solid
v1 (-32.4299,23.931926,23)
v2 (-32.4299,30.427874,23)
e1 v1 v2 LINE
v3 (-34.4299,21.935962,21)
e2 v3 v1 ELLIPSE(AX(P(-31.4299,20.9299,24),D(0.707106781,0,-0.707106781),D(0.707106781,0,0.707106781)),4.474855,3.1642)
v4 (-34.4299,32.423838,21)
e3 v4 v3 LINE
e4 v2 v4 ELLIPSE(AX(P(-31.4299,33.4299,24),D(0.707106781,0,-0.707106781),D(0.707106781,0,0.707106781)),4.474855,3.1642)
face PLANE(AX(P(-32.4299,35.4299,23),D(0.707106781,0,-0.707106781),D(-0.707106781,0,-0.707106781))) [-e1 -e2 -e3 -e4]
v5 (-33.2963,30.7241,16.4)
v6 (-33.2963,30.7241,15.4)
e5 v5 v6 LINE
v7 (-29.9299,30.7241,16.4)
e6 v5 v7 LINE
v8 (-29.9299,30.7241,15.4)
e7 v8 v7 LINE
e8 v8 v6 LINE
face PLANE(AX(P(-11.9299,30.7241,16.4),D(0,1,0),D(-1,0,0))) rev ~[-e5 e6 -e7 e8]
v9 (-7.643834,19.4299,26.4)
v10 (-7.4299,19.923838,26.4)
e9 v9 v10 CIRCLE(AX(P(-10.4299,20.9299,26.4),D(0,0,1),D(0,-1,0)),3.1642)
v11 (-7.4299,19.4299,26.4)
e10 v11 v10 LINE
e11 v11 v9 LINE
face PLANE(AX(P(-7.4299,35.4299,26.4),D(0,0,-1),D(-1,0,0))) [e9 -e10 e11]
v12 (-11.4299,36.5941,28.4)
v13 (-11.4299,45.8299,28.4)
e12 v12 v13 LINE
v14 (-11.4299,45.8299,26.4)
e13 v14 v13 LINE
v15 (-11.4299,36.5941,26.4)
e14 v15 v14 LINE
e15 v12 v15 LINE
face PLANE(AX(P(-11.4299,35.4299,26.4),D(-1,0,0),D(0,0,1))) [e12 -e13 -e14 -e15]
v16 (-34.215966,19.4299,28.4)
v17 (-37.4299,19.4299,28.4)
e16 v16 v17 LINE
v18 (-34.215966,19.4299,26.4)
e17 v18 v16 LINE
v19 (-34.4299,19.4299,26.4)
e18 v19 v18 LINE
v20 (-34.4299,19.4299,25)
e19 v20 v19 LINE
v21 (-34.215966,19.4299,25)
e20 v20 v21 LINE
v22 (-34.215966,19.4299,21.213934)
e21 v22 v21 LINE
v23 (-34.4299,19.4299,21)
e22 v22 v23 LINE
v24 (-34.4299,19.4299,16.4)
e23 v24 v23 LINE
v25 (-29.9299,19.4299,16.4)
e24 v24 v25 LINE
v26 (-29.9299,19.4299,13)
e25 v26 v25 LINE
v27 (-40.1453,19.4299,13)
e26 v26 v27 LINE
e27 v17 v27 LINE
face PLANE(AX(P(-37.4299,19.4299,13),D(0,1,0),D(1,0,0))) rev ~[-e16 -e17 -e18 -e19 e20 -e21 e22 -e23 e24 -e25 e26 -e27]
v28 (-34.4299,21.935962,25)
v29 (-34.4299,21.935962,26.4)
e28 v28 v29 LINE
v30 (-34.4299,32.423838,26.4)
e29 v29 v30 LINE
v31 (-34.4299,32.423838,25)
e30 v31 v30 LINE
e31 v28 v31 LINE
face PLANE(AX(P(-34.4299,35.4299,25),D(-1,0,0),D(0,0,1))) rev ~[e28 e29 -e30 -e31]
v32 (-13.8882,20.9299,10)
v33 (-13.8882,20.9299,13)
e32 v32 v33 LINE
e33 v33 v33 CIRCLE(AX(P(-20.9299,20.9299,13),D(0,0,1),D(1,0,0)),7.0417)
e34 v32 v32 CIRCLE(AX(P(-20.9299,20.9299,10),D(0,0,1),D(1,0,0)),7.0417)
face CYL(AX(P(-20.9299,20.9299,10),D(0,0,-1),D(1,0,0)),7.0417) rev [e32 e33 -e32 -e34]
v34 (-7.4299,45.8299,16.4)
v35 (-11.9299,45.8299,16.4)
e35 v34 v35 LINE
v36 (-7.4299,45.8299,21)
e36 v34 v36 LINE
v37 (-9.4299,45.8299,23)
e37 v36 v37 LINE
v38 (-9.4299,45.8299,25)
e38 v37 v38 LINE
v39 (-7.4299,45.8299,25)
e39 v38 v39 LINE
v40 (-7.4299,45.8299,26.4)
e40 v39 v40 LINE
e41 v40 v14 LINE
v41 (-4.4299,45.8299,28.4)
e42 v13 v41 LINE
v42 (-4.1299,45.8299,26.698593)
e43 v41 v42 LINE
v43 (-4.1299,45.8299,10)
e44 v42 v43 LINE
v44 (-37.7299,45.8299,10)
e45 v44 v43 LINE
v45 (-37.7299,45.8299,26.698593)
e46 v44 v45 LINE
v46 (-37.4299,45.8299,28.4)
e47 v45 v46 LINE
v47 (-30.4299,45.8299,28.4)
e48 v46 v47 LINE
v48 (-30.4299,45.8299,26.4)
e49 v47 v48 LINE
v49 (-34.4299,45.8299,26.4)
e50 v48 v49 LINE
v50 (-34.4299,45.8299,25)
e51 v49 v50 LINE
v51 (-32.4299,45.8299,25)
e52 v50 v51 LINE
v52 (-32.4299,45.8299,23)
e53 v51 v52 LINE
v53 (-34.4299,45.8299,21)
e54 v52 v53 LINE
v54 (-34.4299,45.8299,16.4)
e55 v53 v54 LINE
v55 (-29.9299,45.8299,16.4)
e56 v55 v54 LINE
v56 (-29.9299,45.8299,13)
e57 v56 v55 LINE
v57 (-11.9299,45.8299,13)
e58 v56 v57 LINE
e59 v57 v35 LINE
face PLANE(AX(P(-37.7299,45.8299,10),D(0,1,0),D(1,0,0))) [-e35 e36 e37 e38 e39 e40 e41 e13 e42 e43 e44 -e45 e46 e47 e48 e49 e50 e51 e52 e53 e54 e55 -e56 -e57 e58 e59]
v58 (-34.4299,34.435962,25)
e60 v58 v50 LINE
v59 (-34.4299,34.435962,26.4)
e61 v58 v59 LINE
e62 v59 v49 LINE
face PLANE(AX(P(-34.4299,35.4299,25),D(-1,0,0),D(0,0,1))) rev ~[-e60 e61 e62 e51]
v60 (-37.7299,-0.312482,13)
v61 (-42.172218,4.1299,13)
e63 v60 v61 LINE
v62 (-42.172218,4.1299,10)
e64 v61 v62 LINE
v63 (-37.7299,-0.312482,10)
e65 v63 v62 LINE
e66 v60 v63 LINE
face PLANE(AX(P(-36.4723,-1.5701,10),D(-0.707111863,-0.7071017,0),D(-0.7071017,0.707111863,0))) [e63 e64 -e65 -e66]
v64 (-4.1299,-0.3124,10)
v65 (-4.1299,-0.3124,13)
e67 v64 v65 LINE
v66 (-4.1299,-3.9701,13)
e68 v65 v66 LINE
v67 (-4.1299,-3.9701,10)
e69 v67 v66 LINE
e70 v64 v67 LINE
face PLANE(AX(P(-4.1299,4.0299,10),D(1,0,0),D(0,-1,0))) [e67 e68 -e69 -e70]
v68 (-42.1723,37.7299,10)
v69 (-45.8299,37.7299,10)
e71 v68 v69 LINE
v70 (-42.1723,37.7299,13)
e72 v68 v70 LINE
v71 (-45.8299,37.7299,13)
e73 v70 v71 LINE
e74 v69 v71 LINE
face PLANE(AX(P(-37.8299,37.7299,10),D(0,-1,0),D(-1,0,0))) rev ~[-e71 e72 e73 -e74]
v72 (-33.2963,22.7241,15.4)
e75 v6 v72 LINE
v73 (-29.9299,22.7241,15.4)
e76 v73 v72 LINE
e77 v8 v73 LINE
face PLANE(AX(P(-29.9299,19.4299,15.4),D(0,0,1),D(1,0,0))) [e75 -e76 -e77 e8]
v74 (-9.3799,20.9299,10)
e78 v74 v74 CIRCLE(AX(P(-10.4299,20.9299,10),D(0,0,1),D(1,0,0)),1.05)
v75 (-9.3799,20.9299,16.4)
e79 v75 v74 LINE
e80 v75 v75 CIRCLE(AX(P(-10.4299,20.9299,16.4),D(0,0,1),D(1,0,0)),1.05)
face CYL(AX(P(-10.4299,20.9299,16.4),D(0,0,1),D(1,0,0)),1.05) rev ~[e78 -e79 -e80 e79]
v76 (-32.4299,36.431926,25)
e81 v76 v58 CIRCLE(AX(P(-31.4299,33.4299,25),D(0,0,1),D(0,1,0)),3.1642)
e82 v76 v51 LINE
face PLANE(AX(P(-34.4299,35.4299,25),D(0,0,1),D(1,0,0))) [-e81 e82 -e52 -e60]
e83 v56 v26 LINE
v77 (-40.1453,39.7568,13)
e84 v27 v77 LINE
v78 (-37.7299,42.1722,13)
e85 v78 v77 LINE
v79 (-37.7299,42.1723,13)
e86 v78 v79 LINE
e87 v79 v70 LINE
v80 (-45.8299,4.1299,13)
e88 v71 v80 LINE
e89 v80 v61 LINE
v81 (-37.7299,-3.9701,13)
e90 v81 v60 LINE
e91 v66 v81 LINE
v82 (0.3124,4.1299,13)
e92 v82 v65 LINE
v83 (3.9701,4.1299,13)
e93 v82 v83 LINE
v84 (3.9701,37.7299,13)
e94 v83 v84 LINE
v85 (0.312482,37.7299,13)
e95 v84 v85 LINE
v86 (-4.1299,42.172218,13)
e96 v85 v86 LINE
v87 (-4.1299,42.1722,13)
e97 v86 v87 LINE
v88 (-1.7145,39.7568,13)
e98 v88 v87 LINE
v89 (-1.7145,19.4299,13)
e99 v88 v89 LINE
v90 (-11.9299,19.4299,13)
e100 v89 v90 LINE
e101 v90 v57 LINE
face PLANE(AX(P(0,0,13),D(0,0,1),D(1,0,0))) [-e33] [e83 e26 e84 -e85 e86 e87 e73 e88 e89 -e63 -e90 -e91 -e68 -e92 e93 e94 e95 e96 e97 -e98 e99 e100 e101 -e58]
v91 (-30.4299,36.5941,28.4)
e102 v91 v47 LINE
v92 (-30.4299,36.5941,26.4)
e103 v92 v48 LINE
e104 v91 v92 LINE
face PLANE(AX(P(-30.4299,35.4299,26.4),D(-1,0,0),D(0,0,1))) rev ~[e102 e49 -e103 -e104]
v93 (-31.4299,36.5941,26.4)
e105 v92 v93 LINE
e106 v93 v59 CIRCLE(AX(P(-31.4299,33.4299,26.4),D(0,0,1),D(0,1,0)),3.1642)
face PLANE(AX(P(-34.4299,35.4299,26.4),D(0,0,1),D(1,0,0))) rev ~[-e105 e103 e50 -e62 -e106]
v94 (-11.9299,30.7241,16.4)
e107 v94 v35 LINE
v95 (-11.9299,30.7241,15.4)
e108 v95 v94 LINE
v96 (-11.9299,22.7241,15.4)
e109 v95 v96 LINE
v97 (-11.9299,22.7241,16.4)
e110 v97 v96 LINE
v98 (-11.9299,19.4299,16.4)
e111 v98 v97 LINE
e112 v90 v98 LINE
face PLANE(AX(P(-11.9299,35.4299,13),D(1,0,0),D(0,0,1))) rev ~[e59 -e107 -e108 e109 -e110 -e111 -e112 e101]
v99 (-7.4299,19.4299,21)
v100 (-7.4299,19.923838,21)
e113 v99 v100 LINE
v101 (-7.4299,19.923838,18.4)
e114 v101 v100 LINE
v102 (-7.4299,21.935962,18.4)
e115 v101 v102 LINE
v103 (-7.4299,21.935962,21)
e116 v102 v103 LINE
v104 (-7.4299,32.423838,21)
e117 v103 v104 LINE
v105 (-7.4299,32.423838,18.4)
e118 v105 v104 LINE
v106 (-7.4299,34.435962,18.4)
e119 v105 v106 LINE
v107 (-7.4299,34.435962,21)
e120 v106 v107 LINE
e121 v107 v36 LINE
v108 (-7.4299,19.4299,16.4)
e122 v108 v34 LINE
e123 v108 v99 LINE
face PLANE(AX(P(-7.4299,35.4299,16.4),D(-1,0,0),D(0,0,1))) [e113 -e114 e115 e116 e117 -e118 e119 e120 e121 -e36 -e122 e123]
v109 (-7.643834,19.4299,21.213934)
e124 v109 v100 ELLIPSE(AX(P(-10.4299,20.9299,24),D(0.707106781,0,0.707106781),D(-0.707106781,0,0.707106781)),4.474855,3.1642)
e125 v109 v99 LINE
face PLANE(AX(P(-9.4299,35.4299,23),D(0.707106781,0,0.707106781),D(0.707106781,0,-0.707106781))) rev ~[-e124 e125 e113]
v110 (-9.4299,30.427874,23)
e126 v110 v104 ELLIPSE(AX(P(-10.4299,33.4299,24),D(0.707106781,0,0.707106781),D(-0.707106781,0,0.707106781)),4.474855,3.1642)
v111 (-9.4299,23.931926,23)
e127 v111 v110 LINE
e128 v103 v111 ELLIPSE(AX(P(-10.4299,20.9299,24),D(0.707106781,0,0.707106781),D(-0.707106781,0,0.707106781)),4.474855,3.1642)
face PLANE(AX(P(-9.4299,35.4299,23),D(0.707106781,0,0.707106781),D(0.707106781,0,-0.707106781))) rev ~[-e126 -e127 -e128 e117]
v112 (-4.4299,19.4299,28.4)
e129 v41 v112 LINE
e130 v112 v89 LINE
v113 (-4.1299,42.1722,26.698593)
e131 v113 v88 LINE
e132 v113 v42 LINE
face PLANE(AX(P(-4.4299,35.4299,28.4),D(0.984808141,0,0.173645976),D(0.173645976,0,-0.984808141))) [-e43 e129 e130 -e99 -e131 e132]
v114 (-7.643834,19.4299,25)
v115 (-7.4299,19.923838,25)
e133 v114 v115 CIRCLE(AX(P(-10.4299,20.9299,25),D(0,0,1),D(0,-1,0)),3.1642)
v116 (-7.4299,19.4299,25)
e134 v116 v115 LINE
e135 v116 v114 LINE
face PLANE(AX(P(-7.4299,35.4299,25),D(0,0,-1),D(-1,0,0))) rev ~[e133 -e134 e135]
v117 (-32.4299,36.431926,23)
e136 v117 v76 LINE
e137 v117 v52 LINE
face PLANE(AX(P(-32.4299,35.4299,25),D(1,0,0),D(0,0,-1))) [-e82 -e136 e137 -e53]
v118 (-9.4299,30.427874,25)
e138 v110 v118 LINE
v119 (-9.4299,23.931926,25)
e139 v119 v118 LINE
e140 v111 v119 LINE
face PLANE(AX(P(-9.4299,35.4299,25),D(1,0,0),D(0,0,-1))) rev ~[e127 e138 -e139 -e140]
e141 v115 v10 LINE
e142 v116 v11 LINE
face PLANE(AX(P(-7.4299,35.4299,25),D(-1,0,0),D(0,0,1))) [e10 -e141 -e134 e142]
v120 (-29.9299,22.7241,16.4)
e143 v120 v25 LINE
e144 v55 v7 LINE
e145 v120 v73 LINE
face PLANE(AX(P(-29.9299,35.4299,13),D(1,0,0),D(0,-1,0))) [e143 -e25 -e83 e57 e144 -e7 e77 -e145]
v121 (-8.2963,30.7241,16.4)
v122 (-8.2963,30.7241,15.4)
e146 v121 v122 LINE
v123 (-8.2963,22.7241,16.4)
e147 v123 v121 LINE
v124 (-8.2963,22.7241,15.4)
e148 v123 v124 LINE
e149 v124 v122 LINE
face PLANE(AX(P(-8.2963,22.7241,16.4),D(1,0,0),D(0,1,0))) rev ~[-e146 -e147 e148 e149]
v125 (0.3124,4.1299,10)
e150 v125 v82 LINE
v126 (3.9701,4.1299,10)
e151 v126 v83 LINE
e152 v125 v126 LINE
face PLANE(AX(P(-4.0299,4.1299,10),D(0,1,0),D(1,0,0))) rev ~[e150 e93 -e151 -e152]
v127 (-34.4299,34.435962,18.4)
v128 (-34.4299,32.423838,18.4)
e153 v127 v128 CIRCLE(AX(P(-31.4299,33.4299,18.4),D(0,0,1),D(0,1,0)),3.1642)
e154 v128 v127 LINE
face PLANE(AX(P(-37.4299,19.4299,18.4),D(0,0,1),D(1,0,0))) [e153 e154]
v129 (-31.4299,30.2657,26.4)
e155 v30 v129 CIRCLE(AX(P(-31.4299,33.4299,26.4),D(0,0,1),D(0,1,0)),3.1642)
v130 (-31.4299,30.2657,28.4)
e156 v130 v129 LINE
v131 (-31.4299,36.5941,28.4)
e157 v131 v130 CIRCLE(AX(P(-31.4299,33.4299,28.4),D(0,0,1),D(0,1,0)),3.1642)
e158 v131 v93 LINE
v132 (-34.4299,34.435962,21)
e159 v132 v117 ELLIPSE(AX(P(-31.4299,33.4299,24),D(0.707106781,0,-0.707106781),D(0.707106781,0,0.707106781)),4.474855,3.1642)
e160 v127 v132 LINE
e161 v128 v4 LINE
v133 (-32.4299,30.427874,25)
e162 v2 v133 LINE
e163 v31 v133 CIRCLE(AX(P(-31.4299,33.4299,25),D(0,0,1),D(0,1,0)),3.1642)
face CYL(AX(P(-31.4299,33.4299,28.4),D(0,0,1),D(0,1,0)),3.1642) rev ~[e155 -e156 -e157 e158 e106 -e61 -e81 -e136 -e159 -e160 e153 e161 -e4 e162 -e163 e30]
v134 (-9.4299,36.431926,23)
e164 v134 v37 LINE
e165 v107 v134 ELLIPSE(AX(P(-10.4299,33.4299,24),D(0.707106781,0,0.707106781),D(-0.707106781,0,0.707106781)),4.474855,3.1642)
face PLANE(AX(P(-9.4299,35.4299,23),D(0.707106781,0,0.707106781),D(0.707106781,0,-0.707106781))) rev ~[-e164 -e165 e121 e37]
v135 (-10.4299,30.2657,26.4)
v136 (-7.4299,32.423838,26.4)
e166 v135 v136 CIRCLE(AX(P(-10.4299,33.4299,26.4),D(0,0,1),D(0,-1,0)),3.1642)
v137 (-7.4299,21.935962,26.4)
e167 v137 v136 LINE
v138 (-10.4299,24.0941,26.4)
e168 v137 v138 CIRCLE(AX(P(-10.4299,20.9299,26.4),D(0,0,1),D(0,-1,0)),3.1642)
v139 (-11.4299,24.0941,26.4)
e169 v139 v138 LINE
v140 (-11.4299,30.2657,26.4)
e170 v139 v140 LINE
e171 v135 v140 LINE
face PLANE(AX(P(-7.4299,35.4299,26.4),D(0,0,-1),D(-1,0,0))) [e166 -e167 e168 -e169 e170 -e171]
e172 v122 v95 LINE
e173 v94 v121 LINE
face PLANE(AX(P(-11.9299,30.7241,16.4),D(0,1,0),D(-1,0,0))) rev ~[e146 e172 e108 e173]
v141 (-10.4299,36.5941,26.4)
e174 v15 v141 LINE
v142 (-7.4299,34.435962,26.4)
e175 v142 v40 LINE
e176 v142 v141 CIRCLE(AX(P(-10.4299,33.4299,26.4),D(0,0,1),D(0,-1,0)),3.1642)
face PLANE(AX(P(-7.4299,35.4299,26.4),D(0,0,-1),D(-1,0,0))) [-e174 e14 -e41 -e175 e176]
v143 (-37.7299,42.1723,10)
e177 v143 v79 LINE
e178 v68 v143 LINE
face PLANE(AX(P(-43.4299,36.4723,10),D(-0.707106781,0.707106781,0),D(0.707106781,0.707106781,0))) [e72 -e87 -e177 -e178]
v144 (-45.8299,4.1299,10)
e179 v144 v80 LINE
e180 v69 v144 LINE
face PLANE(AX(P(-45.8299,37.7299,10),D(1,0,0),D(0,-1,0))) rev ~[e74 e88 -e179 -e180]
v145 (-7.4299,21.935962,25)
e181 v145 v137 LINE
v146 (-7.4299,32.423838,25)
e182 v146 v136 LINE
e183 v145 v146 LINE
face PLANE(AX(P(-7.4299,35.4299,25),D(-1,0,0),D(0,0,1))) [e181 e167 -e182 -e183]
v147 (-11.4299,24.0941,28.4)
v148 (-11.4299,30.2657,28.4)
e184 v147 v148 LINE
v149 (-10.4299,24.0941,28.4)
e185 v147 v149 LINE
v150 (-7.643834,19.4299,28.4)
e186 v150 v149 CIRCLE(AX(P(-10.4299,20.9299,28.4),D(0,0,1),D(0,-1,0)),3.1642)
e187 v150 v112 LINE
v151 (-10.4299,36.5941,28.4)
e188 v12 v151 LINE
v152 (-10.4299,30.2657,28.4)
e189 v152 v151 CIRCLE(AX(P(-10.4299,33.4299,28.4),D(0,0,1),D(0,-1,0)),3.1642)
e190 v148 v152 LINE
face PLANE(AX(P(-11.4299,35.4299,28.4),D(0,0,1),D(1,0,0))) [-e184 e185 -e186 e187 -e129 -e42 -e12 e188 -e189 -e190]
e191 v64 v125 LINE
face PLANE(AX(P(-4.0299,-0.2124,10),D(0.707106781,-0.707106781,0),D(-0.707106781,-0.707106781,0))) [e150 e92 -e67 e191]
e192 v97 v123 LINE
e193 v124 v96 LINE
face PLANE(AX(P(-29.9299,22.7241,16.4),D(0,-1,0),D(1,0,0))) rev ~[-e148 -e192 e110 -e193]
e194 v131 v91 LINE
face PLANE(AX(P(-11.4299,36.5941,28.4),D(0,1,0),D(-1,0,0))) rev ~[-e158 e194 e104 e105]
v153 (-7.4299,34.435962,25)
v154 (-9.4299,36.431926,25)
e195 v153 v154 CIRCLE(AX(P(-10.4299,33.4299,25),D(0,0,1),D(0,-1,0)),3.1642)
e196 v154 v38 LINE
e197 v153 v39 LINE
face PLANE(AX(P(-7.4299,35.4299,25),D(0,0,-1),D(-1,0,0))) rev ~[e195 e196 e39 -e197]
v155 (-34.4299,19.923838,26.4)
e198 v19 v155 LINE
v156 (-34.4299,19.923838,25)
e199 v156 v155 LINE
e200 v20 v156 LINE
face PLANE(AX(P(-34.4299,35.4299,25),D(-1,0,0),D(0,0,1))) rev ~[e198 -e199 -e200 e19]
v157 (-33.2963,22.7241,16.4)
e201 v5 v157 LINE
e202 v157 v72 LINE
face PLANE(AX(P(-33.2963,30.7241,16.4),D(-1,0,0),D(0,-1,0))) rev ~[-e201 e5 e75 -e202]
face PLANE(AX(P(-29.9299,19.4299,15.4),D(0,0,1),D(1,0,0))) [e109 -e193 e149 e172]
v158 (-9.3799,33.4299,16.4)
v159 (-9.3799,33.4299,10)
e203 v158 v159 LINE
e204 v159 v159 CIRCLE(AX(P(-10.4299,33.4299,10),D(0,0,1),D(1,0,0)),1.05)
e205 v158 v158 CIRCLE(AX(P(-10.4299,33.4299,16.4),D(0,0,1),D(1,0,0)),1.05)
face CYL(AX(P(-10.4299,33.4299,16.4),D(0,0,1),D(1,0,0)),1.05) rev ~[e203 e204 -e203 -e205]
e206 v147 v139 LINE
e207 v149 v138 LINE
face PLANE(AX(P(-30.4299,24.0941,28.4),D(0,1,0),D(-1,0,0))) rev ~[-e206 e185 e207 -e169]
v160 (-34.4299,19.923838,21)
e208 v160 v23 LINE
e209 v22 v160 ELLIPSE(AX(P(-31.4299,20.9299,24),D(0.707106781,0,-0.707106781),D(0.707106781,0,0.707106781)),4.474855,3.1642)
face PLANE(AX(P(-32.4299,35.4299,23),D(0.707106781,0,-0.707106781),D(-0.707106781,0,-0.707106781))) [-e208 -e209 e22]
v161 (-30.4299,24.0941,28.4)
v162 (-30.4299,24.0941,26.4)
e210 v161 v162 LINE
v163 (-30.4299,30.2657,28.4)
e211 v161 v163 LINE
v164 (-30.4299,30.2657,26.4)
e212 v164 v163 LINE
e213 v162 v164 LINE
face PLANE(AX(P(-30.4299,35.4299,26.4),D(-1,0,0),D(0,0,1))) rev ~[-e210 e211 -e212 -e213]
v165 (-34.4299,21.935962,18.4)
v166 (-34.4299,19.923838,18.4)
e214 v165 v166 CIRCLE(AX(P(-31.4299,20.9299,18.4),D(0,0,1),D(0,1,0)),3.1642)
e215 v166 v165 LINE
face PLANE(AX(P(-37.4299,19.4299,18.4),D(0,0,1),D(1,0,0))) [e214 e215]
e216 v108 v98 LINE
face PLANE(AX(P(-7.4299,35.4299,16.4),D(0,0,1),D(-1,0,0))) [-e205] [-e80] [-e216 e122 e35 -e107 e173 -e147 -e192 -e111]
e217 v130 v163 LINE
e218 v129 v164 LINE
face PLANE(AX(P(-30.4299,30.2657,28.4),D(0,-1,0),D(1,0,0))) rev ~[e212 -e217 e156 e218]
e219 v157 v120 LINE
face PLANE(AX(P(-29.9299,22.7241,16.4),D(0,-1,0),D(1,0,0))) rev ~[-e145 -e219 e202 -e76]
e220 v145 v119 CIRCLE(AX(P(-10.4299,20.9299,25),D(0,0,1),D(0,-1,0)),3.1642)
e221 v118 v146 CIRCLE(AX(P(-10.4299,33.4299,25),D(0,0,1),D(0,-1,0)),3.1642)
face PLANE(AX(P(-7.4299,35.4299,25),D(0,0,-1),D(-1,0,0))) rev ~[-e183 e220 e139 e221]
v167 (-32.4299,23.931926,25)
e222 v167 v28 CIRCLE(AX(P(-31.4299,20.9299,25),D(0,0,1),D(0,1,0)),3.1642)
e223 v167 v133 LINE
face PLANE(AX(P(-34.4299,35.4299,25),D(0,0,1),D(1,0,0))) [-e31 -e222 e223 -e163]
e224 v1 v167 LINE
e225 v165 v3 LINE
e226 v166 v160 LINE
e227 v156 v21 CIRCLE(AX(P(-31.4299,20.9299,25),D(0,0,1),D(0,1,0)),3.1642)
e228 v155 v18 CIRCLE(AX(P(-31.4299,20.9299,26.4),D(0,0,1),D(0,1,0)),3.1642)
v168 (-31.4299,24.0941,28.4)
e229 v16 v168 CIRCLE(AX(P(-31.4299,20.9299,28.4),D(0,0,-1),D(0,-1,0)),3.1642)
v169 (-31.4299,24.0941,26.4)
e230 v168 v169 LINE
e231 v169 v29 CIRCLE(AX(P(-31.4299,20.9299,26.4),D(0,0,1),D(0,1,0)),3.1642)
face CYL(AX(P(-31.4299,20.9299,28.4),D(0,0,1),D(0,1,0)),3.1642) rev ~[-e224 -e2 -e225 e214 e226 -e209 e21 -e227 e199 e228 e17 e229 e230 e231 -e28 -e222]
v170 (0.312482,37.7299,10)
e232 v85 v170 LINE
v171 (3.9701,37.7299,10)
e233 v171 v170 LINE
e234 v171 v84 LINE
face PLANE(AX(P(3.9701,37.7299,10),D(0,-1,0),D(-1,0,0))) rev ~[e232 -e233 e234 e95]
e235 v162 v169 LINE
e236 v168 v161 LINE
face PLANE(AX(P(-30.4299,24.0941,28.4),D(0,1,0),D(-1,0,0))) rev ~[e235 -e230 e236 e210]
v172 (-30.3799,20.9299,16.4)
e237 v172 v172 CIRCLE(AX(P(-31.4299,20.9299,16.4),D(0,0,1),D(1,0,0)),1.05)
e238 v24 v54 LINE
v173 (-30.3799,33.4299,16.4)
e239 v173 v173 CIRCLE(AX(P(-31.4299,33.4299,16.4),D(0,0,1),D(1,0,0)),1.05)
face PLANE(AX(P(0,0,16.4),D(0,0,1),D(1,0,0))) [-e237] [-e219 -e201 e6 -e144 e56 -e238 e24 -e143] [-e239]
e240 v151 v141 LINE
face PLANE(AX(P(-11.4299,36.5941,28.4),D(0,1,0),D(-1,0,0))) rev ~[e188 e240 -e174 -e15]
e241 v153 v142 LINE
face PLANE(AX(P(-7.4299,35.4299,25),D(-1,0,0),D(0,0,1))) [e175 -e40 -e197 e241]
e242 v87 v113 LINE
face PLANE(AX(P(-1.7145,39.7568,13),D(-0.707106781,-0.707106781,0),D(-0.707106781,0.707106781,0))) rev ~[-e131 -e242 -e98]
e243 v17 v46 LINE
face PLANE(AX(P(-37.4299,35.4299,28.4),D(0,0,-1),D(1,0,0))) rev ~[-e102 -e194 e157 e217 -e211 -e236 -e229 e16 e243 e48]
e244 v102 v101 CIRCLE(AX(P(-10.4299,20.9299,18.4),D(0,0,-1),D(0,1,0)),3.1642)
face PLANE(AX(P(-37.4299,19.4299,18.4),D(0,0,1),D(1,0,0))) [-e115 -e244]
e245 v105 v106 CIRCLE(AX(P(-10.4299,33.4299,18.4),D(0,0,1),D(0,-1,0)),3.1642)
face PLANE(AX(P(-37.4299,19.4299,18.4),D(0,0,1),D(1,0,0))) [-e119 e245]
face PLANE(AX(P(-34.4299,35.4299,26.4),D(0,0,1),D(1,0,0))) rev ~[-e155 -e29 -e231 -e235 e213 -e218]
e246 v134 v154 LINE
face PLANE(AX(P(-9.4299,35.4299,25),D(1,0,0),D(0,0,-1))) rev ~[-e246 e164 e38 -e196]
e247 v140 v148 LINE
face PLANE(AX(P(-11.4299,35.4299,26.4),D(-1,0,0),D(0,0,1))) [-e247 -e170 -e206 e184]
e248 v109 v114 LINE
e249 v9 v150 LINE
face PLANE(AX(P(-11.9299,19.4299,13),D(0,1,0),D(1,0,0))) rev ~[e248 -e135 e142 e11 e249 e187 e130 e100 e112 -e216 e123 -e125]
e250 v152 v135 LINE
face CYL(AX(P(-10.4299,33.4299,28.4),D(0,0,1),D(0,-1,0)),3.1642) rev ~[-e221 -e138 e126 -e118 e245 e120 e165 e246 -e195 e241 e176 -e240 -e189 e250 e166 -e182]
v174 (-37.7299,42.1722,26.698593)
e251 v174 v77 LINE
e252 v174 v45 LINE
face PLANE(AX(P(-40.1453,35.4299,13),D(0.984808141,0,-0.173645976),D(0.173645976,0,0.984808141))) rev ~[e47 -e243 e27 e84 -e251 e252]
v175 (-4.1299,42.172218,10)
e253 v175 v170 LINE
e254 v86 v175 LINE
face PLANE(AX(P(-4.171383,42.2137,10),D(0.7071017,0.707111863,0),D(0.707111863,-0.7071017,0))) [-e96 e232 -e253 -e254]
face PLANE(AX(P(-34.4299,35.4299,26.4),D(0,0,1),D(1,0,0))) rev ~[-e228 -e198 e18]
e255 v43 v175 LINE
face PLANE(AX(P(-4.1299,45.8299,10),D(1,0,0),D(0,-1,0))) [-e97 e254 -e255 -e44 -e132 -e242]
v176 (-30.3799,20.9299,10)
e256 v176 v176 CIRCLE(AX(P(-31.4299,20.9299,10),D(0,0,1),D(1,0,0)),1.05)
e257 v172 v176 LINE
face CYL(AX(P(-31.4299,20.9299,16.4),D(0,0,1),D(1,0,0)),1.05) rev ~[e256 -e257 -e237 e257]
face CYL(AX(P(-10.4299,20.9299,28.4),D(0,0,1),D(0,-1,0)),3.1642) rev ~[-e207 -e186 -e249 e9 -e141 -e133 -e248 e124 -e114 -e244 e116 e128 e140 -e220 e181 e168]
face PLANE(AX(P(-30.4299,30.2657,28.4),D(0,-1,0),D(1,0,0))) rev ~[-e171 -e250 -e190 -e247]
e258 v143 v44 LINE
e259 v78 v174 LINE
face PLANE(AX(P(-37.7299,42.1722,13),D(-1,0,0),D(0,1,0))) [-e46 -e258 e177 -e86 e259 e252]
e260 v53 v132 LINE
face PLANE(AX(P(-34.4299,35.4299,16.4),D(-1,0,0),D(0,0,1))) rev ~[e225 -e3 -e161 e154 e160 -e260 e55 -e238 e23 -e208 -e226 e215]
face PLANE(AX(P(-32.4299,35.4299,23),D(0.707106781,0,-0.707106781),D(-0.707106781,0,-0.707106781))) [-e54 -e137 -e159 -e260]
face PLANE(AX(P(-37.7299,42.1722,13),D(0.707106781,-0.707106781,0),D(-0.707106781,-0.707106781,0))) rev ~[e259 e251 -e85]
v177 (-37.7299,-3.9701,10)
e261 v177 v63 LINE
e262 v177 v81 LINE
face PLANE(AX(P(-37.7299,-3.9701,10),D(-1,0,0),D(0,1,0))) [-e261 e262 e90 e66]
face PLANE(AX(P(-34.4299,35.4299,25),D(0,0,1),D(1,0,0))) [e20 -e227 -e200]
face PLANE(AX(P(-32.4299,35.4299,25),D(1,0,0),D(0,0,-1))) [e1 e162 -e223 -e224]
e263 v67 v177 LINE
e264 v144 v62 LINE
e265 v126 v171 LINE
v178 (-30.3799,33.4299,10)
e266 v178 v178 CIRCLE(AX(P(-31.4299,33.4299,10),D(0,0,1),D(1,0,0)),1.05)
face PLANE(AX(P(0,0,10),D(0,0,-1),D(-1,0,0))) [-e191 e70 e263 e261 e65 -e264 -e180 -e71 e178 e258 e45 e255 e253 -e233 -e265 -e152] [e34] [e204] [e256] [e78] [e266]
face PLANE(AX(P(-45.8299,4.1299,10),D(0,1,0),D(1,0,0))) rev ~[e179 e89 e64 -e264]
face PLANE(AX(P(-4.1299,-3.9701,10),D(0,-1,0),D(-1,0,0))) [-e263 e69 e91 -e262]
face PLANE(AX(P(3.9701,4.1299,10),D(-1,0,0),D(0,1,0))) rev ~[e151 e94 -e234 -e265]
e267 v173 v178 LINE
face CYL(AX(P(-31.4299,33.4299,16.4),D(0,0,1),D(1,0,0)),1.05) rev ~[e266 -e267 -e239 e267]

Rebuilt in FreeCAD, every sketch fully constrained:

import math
import FreeCAD as App
import Part
import Sketcher

V = App.Vector
Q = App.Units.Quantity

doc = App.newDocument("Part")
body = doc.addObject("PartDesign::Body", "Body")

# Sketch on XY plane
sketch1 = body.newObject("Sketcher::SketchObject", "Sketch")
sketch1.AttachmentSupport = (doc.getObject("XY_Plane"), [""])
sketch1.MapMode = "FlatFace"
sketch1.AttachmentOffset = App.Placement(V(0, 0, 10), App.Rotation())
sketch1.addGeometry([
    Part.LineSegment(V(-5, -2, 0), V(2, 5, 0)),  # 0
    Part.LineSegment(V(2, 5, 0), V(2, 36, 0)),  # 1
    Part.LineSegment(V(2, 36, 0), V(-5, 43, 0)),  # 2
    Part.LineSegment(V(-5, 43, 0), V(-36, 43, 0)),  # 3
    Part.LineSegment(V(-36, 43, 0), V(-43, 36, 0)),  # 4
    Part.LineSegment(V(-43, 36, 0), V(-43, 5, 0)),  # 5
    Part.LineSegment(V(-43, 5, 0), V(-36, -2, 0)),  # 6
    Part.LineSegment(V(-36, -2, 0), V(-5, -2, 0)),  # 7
    Part.Circle(V(-21, 21, 0), V(0, 0, 1), 7),  # 8
], False)
sketch1.addConstraint([
    Sketcher.Constraint("Coincident", 0, 2, 1, 1),
    Sketcher.Constraint("Coincident", 1, 2, 2, 1),
    Sketcher.Constraint("Coincident", 2, 2, 3, 1),
    Sketcher.Constraint("Coincident", 3, 2, 4, 1),
    Sketcher.Constraint("Coincident", 4, 2, 5, 1),
    Sketcher.Constraint("Coincident", 5, 2, 6, 1),
    Sketcher.Constraint("Coincident", 6, 2, 7, 1),
    Sketcher.Constraint("Coincident", 7, 2, 0, 1),
    Sketcher.Constraint("Vertical", 1),
    Sketcher.Constraint("Horizontal", 3),
    Sketcher.Constraint("Vertical", 5),
    Sketcher.Constraint("Horizontal", 7),
    Sketcher.Constraint("Perpendicular", 0, 2),
    Sketcher.Constraint("Perpendicular", 2, 4),
    Sketcher.Constraint("Perpendicular", 4, 6),
    Sketcher.Constraint("Horizontal", 1, 2, 4, 2),
    Sketcher.Constraint("Horizontal", 0, 2, 5, 2),
    Sketcher.Constraint("Vertical", 3, 2, 6, 2),
    Sketcher.Constraint("Vertical", 2, 2, 7, 2),
    Sketcher.Constraint("Equal", 7, 1),
    Sketcher.Constraint("DistanceX", 4, 2, 1, 2, 45.0),
    Sketcher.Constraint("Diameter", 8, 14.0834),
    Sketcher.Constraint("DistanceX", 8, 3, 0, 2, 22.5),
    Sketcher.Constraint("DistanceY", 8, 3, 2, 2, 22.5),
    Sketcher.Constraint("DistanceX", 8, 3, -1, 1, 20.93),
    Sketcher.Constraint("DistanceY", -1, 1, 8, 3, 20.93),
    Sketcher.Constraint("DistanceX", 3, 2, 3, 1, 31.0847),
])
pad1 = body.newObject("PartDesign::Pad", "Pad")
pad1.Profile = sketch1
pad1.Length = 3

# Sketch on XY plane
sketch2 = body.newObject("Sketcher::SketchObject", "Sketch001")
sketch2.AttachmentSupport = (doc.getObject("XY_Plane"), [""])
sketch2.MapMode = "FlatFace"
sketch2.AttachmentOffset = App.Placement(V(0, 0, 10), App.Rotation())
sketch2.addGeometry([
    Part.LineSegment(V(-46, 38, 0), V(-38, 38, 0)),  # 0
    Part.LineSegment(V(-38, 38, 0), V(-38, 4, 0)),  # 1
    Part.LineSegment(V(-38, 4, 0), V(-46, 4, 0)),  # 2
    Part.LineSegment(V(-46, 4, 0), V(-46, 38, 0)),  # 3
    Part.LineSegment(V(-38, -4, 0), V(-38, 4, 0)),  # 4
    Part.LineSegment(V(-38, 4, 0), V(-4, 4, 0)),  # 5
    Part.LineSegment(V(-4, 4, 0), V(-4, -4, 0)),  # 6
    Part.LineSegment(V(-4, -4, 0), V(-38, -4, 0)),  # 7
    Part.LineSegment(V(4, 4, 0), V(-4, 4, 0)),  # 8
    Part.LineSegment(V(-4, 4, 0), V(-4, 38, 0)),  # 9
    Part.LineSegment(V(-4, 38, 0), V(4, 38, 0)),  # 10
    Part.LineSegment(V(4, 38, 0), V(4, 4, 0)),  # 11
    Part.LineSegment(V(-4, 46, 0), V(-4, 38, 0)),  # 12
    Part.LineSegment(V(-4, 38, 0), V(-38, 38, 0)),  # 13
    Part.LineSegment(V(-38, 38, 0), V(-38, 46, 0)),  # 14
    Part.LineSegment(V(-38, 46, 0), V(-4, 46, 0)),  # 15
], False)
sketch2.addConstraint([
    Sketcher.Constraint("Coincident", 0, 2, 1, 1),
    Sketcher.Constraint("Coincident", 1, 2, 2, 1),
    Sketcher.Constraint("Coincident", 2, 2, 3, 1),
    Sketcher.Constraint("Coincident", 3, 2, 0, 1),
    Sketcher.Constraint("Coincident", 4, 2, 5, 1),
    Sketcher.Constraint("Coincident", 5, 2, 6, 1),
    Sketcher.Constraint("Coincident", 6, 2, 7, 1),
    Sketcher.Constraint("Coincident", 7, 2, 4, 1),
    Sketcher.Constraint("Coincident", 8, 2, 9, 1),
    Sketcher.Constraint("Coincident", 9, 2, 10, 1),
    Sketcher.Constraint("Coincident", 10, 2, 11, 1),
    Sketcher.Constraint("Coincident", 11, 2, 8, 1),
    Sketcher.Constraint("Coincident", 12, 2, 13, 1),
    Sketcher.Constraint("Coincident", 13, 2, 14, 1),
    Sketcher.Constraint("Coincident", 14, 2, 15, 1),
    Sketcher.Constraint("Coincident", 15, 2, 12, 1),
    Sketcher.Constraint("Horizontal", 0),
    Sketcher.Constraint("Vertical", 1),
    Sketcher.Constraint("Horizontal", 2),
    Sketcher.Constraint("Vertical", 3),
    Sketcher.Constraint("Vertical", 4),
    Sketcher.Constraint("Horizontal", 5),
    Sketcher.Constraint("Vertical", 6),
    Sketcher.Constraint("Horizontal", 7),
    Sketcher.Constraint("Horizontal", 8),
    Sketcher.Constraint("Vertical", 9),
    Sketcher.Constraint("Horizontal", 10),
    Sketcher.Constraint("Vertical", 11),
    Sketcher.Constraint("Vertical", 12),
    Sketcher.Constraint("Horizontal", 13),
    Sketcher.Constraint("Vertical", 14),
    Sketcher.Constraint("Horizontal", 15),
    Sketcher.Constraint("Horizontal", 2, 2, 8, 2),
    Sketcher.Constraint("Horizontal", 3, 2, 9, 2),
    Sketcher.Constraint("Vertical", 6, 2, 12, 2),
    Sketcher.Constraint("Vertical", 7, 2, 13, 2),
    Sketcher.Constraint("Equal", 2, 8),
    Sketcher.Constraint("Equal", 15, 1),
    Sketcher.Constraint("Equal", 10, 4),
    Sketcher.Constraint("Equal", 6, 12),
    Sketcher.Constraint("DistanceX", 1, 2, 4, 2, 0.1),
    Sketcher.Constraint("DistanceY", 4, 2, 1, 2, 0.1),
    Sketcher.Constraint("DistanceX", 5, 2, 8, 2, 0.1),
    Sketcher.Constraint("DistanceY", 9, 2, 12, 2, 0.1),
    Sketcher.Constraint("DistanceX", 0, 1, 0, 2, 8.0),
    Sketcher.Constraint("DistanceX", 5, 1, 5, 2, 33.6),
    Sketcher.Constraint("DistanceX", 0, 2, -1, 1, 37.83),
    Sketcher.Constraint("DistanceY", -1, 1, 0, 2, 37.73),
])
pad2 = body.newObject("PartDesign::Pad", "Pad001")
pad2.Profile = sketch2
pad2.Length = 3

# Sketch on XY plane
sketch3 = body.newObject("Sketcher::SketchObject", "Sketch002")
sketch3.AttachmentSupport = (doc.getObject("XY_Plane"), [""])
sketch3.MapMode = "FlatFace"
sketch3.AttachmentOffset = App.Placement(V(0, 0, 13), App.Rotation())
sketch3.addGeometry([
    Part.LineSegment(V(-12, 19, 0), V(-4, 19, 0)),  # 0
    Part.LineSegment(V(-4, 19, 0), V(-4, 35, 0)),  # 1
    Part.LineSegment(V(-4, 35, 0), V(-12, 35, 0)),  # 2
    Part.LineSegment(V(-12, 35, 0), V(-12, 19, 0)),  # 3
    Part.LineSegment(V(-30, 35, 0), V(-37, 35, 0)),  # 4
    Part.LineSegment(V(-37, 35, 0), V(-37, 19, 0)),  # 5
    Part.LineSegment(V(-37, 19, 0), V(-30, 19, 0)),  # 6
    Part.LineSegment(V(-30, 19, 0), V(-30, 35, 0)),  # 7
], False)
sketch3.addConstraint([
    Sketcher.Constraint("Coincident", 0, 2, 1, 1),
    Sketcher.Constraint("Coincident", 1, 2, 2, 1),
    Sketcher.Constraint("Coincident", 2, 2, 3, 1),
    Sketcher.Constraint("Coincident", 3, 2, 0, 1),
    Sketcher.Constraint("Coincident", 4, 2, 5, 1),
    Sketcher.Constraint("Coincident", 5, 2, 6, 1),
    Sketcher.Constraint("Coincident", 6, 2, 7, 1),
    Sketcher.Constraint("Coincident", 7, 2, 4, 1),
    Sketcher.Constraint("Horizontal", 0),
    Sketcher.Constraint("Vertical", 1),
    Sketcher.Constraint("Horizontal", 2),
    Sketcher.Constraint("Vertical", 3),
    Sketcher.Constraint("Horizontal", 4),
    Sketcher.Constraint("Vertical", 5),
    Sketcher.Constraint("Horizontal", 6),
    Sketcher.Constraint("Vertical", 7),
    Sketcher.Constraint("Horizontal", 2, 2, 4, 2),
    Sketcher.Constraint("Horizontal", 3, 2, 5, 2),
    Sketcher.Constraint("Equal", 2, 4),
    Sketcher.Constraint("DistanceY", 1, 1, 1, 2, 16.0),
    Sketcher.Constraint("DistanceX", 0, 1, 0, 2, 7.5),
    Sketcher.Constraint("DistanceX", 4, 2, 1, 2, 33.0),
    Sketcher.Constraint("DistanceX", 0, 2, -1, 1, 4.43),
    Sketcher.Constraint("DistanceY", -1, 1, 0, 2, 19.43),
])
pad3 = body.newObject("PartDesign::Pad", "Pad002")
pad3.Profile = sketch3
pad3.Length = 3.4

# Sketch on XY plane
sketch4 = body.newObject("Sketcher::SketchObject", "Sketch003")
sketch4.AttachmentSupport = (doc.getObject("XY_Plane"), [""])
sketch4.MapMode = "FlatFace"
sketch4.AttachmentOffset = App.Placement(V(0, 0, 16.4), App.Rotation())
sketch4.addGeometry([
    Part.Circle(V(-10.4, 20.9, 0), V(0, 0, 1), 1.1),
    Part.Circle(V(-10.4, 33.4, 0), V(0, 0, 1), 1.1),
    Part.Circle(V(-31.4, 33.4, 0), V(0, 0, 1), 1.1),
    Part.Circle(V(-31.4, 20.9, 0), V(0, 0, 1), 1.1),
], False)
sketch4.addConstraint([
    Sketcher.Constraint("Equal", 0, 1),
    Sketcher.Constraint("Equal", 1, 2),
    Sketcher.Constraint("Equal", 2, 3),
    Sketcher.Constraint("Horizontal", 1, 3, 2, 3),
    Sketcher.Constraint("Horizontal", 0, 3, 3, 3),
    Sketcher.Constraint("Vertical", 0, 3, 1, 3),
    Sketcher.Constraint("Vertical", 2, 3, 3, 3),
    Sketcher.Constraint("Diameter", 0, 2.1),
    Sketcher.Constraint("DistanceX", 2, 3, 1, 3, 21.0),
    Sketcher.Constraint("DistanceY", 0, 3, 1, 3, 12.5),
    Sketcher.Constraint("DistanceX", 0, 3, -1, 1, 10.43),
    Sketcher.Constraint("DistanceY", -1, 1, 0, 3, 20.93),
])
pocket1 = body.newObject("PartDesign::Pocket", "Pocket")
pocket1.Profile = sketch4
pocket1.Type = "ThroughAll"

# Sketch on XZ plane
sketch5 = body.newObject("Sketcher::SketchObject", "Sketch004")
sketch5.AttachmentSupport = (doc.getObject("XZ_Plane"), [""])
sketch5.MapMode = "FlatFace"
sketch5.AttachmentOffset = App.Placement(V(0, 0, -35.4299), App.Rotation())
sketch5.addGeometry([
    Part.LineSegment(V(-34.4, 21, 0), V(-34.4, 16.4, 0)),  # 0
    Part.LineSegment(V(-34.4, 16.4, 0), V(-37.4, 16.4, 0)),  # 1
    Part.LineSegment(V(-37.4, 16.4, 0), V(-37.4, 13, 0)),  # 2
    Part.LineSegment(V(-37.4, 13, 0), V(-40.1, 13, 0)),  # 3
    Part.LineSegment(V(-40.1, 13, 0), V(-37.4, 28.4, 0)),  # 4
    Part.LineSegment(V(-37.4, 28.4, 0), V(-30.4, 28.4, 0)),  # 5
    Part.LineSegment(V(-30.4, 28.4, 0), V(-30.4, 26.4, 0)),  # 6
    Part.LineSegment(V(-30.4, 26.4, 0), V(-34.4, 26.4, 0)),  # 7
    Part.LineSegment(V(-34.4, 26.4, 0), V(-34.4, 25, 0)),  # 8
    Part.LineSegment(V(-34.4, 25, 0), V(-32.4, 25, 0)),  # 9
    Part.LineSegment(V(-32.4, 25, 0), V(-32.4, 23, 0)),  # 10
    Part.LineSegment(V(-32.4, 23, 0), V(-34.4, 21, 0)),  # 11
    Part.LineSegment(V(-7.4, 25, 0), V(-7.4, 26.4, 0)),  # 12
    Part.LineSegment(V(-7.4, 26.4, 0), V(-11.4, 26.4, 0)),  # 13
    Part.LineSegment(V(-11.4, 26.4, 0), V(-11.4, 28.4, 0)),  # 14
    Part.LineSegment(V(-11.4, 28.4, 0), V(-4.4, 28.4, 0)),  # 15
    Part.LineSegment(V(-4.4, 28.4, 0), V(-1.7, 13, 0)),  # 16
    Part.LineSegment(V(-1.7, 13, 0), V(-4.4, 13, 0)),  # 17
    Part.LineSegment(V(-4.4, 13, 0), V(-4.4, 16.4, 0)),  # 18
    Part.LineSegment(V(-4.4, 16.4, 0), V(-7.4, 16.4, 0)),  # 19
    Part.LineSegment(V(-7.4, 16.4, 0), V(-7.4, 21, 0)),  # 20
    Part.LineSegment(V(-7.4, 21, 0), V(-9.4, 23, 0)),  # 21
    Part.LineSegment(V(-9.4, 23, 0), V(-9.4, 25, 0)),  # 22
    Part.LineSegment(V(-9.4, 25, 0), V(-7.4, 25, 0)),  # 23
], False)
sketch5.addConstraint([
    Sketcher.Constraint("Coincident", 0, 2, 1, 1),
    Sketcher.Constraint("Coincident", 1, 2, 2, 1),
    Sketcher.Constraint("Coincident", 2, 2, 3, 1),
    Sketcher.Constraint("Coincident", 3, 2, 4, 1),
    Sketcher.Constraint("Coincident", 4, 2, 5, 1),
    Sketcher.Constraint("Coincident", 5, 2, 6, 1),
    Sketcher.Constraint("Coincident", 6, 2, 7, 1),
    Sketcher.Constraint("Coincident", 7, 2, 8, 1),
    Sketcher.Constraint("Coincident", 8, 2, 9, 1),
    Sketcher.Constraint("Coincident", 9, 2, 10, 1),
    Sketcher.Constraint("Coincident", 10, 2, 11, 1),
    Sketcher.Constraint("Coincident", 11, 2, 0, 1),
    Sketcher.Constraint("Coincident", 12, 2, 13, 1),
    Sketcher.Constraint("Coincident", 13, 2, 14, 1),
    Sketcher.Constraint("Coincident", 14, 2, 15, 1),
    Sketcher.Constraint("Coincident", 15, 2, 16, 1),
    Sketcher.Constraint("Coincident", 16, 2, 17, 1),
    Sketcher.Constraint("Coincident", 17, 2, 18, 1),
    Sketcher.Constraint("Coincident", 18, 2, 19, 1),
    Sketcher.Constraint("Coincident", 19, 2, 20, 1),
    Sketcher.Constraint("Coincident", 20, 2, 21, 1),
    Sketcher.Constraint("Coincident", 21, 2, 22, 1),
    Sketcher.Constraint("Coincident", 22, 2, 23, 1),
    Sketcher.Constraint("Coincident", 23, 2, 12, 1),
    Sketcher.Constraint("Vertical", 0),
    Sketcher.Constraint("Horizontal", 1),
    Sketcher.Constraint("Vertical", 2),
    Sketcher.Constraint("Horizontal", 3),
    Sketcher.Constraint("Horizontal", 5),
    Sketcher.Constraint("Vertical", 6),
    Sketcher.Constraint("Horizontal", 7),
    Sketcher.Constraint("Vertical", 8),
    Sketcher.Constraint("Horizontal", 9),
    Sketcher.Constraint("Vertical", 10),
    Sketcher.Constraint("Vertical", 12),
    Sketcher.Constraint("Horizontal", 13),
    Sketcher.Constraint("Vertical", 14),
    Sketcher.Constraint("Horizontal", 15),
    Sketcher.Constraint("Horizontal", 17),
    Sketcher.Constraint("Vertical", 18),
    Sketcher.Constraint("Horizontal", 19),
    Sketcher.Constraint("Vertical", 20),
    Sketcher.Constraint("Vertical", 22),
    Sketcher.Constraint("Horizontal", 23),
    Sketcher.Constraint("Perpendicular", 11, 21),
    Sketcher.Constraint("Horizontal", 7, 2, 12, 2),
    Sketcher.Constraint("Horizontal", 5, 2, 14, 2),
    Sketcher.Constraint("Horizontal", 3, 2, 16, 2),
    Sketcher.Constraint("Horizontal", 1, 2, 18, 2),
    Sketcher.Constraint("Horizontal", 11, 2, 20, 2),
    Sketcher.Constraint("Horizontal", 10, 2, 21, 2),
    Sketcher.Constraint("Horizontal", 9, 2, 22, 2),
    Sketcher.Constraint("Vertical", 2, 2, 4, 2),
    Sketcher.Constraint("Vertical", 0, 2, 7, 2),
    Sketcher.Constraint("Vertical", 15, 2, 17, 2),
    Sketcher.Constraint("Vertical", 12, 2, 19, 2),
    Sketcher.Constraint("Equal", 7, 13),
    Sketcher.Constraint("Equal", 5, 15),
    Sketcher.Constraint("Equal", 3, 17),
    Sketcher.Constraint("Equal", 9, 23),
    Sketcher.Constraint("Equal", 23, 6),
    Sketcher.Constraint("Equal", 6, 10),
    Sketcher.Constraint("DistanceX", 1, 2, 1, 1, 3.0),
    Sketcher.Constraint("DistanceX", 5, 1, 5, 2, 7.0),
    Sketcher.Constraint("DistanceX", 9, 1, 9, 2, 2.0),
    Sketcher.Constraint("Angle", 4, Q("80.0001 deg")),
    Sketcher.Constraint("DistanceY", 8, 2, 8, 1, 1.4),
    Sketcher.Constraint("DistanceY", 0, 2, 6, 2, 10.0),
    Sketcher.Constraint("DistanceX", 7, 2, 12, 2, 27.0),
    Sketcher.Constraint("DistanceY", 2, 2, 2, 1, 3.4),
    Sketcher.Constraint("DistanceY", -1, 1, 2, 2, 13.0),
    Sketcher.Constraint("DistanceX", 0, 2, -1, 1, 34.43),
])
pad4 = body.newObject("PartDesign::Pad", "Pad003")
pad4.Profile = sketch5
pad4.Length = 16

# Sketch on XZ plane
sketch6 = body.newObject("Sketcher::SketchObject", "Sketch005")
sketch6.AttachmentSupport = (doc.getObject("XZ_Plane"), [""])
sketch6.MapMode = "FlatFace"
sketch6.AttachmentOffset = App.Placement(V(0, 0, -35.4299), App.Rotation())
sketch6.addGeometry([
    Part.LineSegment(V(-34.4, 16.4, 0), V(-29.9, 16.4, 0)),  # 0
    Part.LineSegment(V(-29.9, 16.4, 0), V(-29.9, 13, 0)),  # 1
    Part.LineSegment(V(-29.9, 13, 0), V(-40.1, 13, 0)),  # 2
    Part.LineSegment(V(-40.1, 13, 0), V(-37.4, 28.4, 0)),  # 3
    Part.LineSegment(V(-37.4, 28.4, 0), V(-30.4, 28.4, 0)),  # 4
    Part.LineSegment(V(-30.4, 28.4, 0), V(-30.4, 26.4, 0)),  # 5
    Part.LineSegment(V(-30.4, 26.4, 0), V(-34.4, 26.4, 0)),  # 6
    Part.LineSegment(V(-34.4, 26.4, 0), V(-34.4, 25, 0)),  # 7
    Part.LineSegment(V(-34.4, 25, 0), V(-32.4, 25, 0)),  # 8
    Part.LineSegment(V(-32.4, 25, 0), V(-32.4, 23, 0)),  # 9
    Part.LineSegment(V(-32.4, 23, 0), V(-34.4, 21, 0)),  # 10
    Part.LineSegment(V(-34.4, 21, 0), V(-34.4, 16.4, 0)),  # 11
    Part.LineSegment(V(-1.7, 13, 0), V(-11.9, 13, 0)),  # 12
    Part.LineSegment(V(-11.9, 13, 0), V(-11.9, 16.4, 0)),  # 13
    Part.LineSegment(V(-11.9, 16.4, 0), V(-7.4, 16.4, 0)),  # 14
    Part.LineSegment(V(-7.4, 16.4, 0), V(-7.4, 21, 0)),  # 15
    Part.LineSegment(V(-7.4, 21, 0), V(-9.4, 23, 0)),  # 16
    Part.LineSegment(V(-9.4, 23, 0), V(-9.4, 25, 0)),  # 17
    Part.LineSegment(V(-9.4, 25, 0), V(-7.4, 25, 0)),  # 18
    Part.LineSegment(V(-7.4, 25, 0), V(-7.4, 26.4, 0)),  # 19
    Part.LineSegment(V(-7.4, 26.4, 0), V(-11.4, 26.4, 0)),  # 20
    Part.LineSegment(V(-11.4, 26.4, 0), V(-11.4, 28.4, 0)),  # 21
    Part.LineSegment(V(-11.4, 28.4, 0), V(-4.4, 28.4, 0)),  # 22
    Part.LineSegment(V(-4.4, 28.4, 0), V(-1.7, 13, 0)),  # 23
], False)
sketch6.addConstraint([
    Sketcher.Constraint("Coincident", 0, 2, 1, 1),
    Sketcher.Constraint("Coincident", 1, 2, 2, 1),
    Sketcher.Constraint("Coincident", 2, 2, 3, 1),
    Sketcher.Constraint("Coincident", 3, 2, 4, 1),
    Sketcher.Constraint("Coincident", 4, 2, 5, 1),
    Sketcher.Constraint("Coincident", 5, 2, 6, 1),
    Sketcher.Constraint("Coincident", 6, 2, 7, 1),
    Sketcher.Constraint("Coincident", 7, 2, 8, 1),
    Sketcher.Constraint("Coincident", 8, 2, 9, 1),
    Sketcher.Constraint("Coincident", 9, 2, 10, 1),
    Sketcher.Constraint("Coincident", 10, 2, 11, 1),
    Sketcher.Constraint("Coincident", 11, 2, 0, 1),
    Sketcher.Constraint("Coincident", 12, 2, 13, 1),
    Sketcher.Constraint("Coincident", 13, 2, 14, 1),
    Sketcher.Constraint("Coincident", 14, 2, 15, 1),
    Sketcher.Constraint("Coincident", 15, 2, 16, 1),
    Sketcher.Constraint("Coincident", 16, 2, 17, 1),
    Sketcher.Constraint("Coincident", 17, 2, 18, 1),
    Sketcher.Constraint("Coincident", 18, 2, 19, 1),
    Sketcher.Constraint("Coincident", 19, 2, 20, 1),
    Sketcher.Constraint("Coincident", 20, 2, 21, 1),
    Sketcher.Constraint("Coincident", 21, 2, 22, 1),
    Sketcher.Constraint("Coincident", 22, 2, 23, 1),
    Sketcher.Constraint("Coincident", 23, 2, 12, 1),
    Sketcher.Constraint("Horizontal", 0),
    Sketcher.Constraint("Vertical", 1),
    Sketcher.Constraint("Horizontal", 2),
    Sketcher.Constraint("Horizontal", 4),
    Sketcher.Constraint("Vertical", 5),
    Sketcher.Constraint("Horizontal", 6),
    Sketcher.Constraint("Vertical", 7),
    Sketcher.Constraint("Horizontal", 8),
    Sketcher.Constraint("Vertical", 9),
    Sketcher.Constraint("Vertical", 11),
    Sketcher.Constraint("Horizontal", 12),
    Sketcher.Constraint("Vertical", 13),
    Sketcher.Constraint("Horizontal", 14),
    Sketcher.Constraint("Vertical", 15),
    Sketcher.Constraint("Vertical", 17),
    Sketcher.Constraint("Horizontal", 18),
    Sketcher.Constraint("Vertical", 19),
    Sketcher.Constraint("Horizontal", 20),
    Sketcher.Constraint("Vertical", 21),
    Sketcher.Constraint("Horizontal", 22),
    Sketcher.Constraint("Perpendicular", 10, 16),
    Sketcher.Constraint("Horizontal", 2, 2, 12, 2),
    Sketcher.Constraint("Horizontal", 11, 2, 13, 2),
    Sketcher.Constraint("Horizontal", 10, 2, 15, 2),
    Sketcher.Constraint("Horizontal", 9, 2, 16, 2),
    Sketcher.Constraint("Horizontal", 8, 2, 17, 2),
    Sketcher.Constraint("Horizontal", 6, 2, 19, 2),
    Sketcher.Constraint("Horizontal", 4, 2, 21, 2),
    Sketcher.Constraint("Vertical", 7, 2, 10, 2),
    Sketcher.Constraint("Vertical", 15, 2, 18, 2),
    Sketcher.Constraint("Equal", 2, 12),
    Sketcher.Constraint("Equal", 0, 14),
    Sketcher.Constraint("Equal", 8, 18),
    Sketcher.Constraint("Equal", 6, 20),
    Sketcher.Constraint("Equal", 4, 22),
    Sketcher.Constraint("Equal", 18, 5),
    Sketcher.Constraint("Equal", 5, 9),
    Sketcher.Constraint("DistanceX", 4, 1, 4, 2, 7.0),
    Sketcher.Constraint("DistanceX", 6, 2, 6, 1, 4.0),
    Sketcher.Constraint("DistanceX", 8, 1, 8, 2, 2.0),
    Sketcher.Constraint("Angle", 3, Q("80.0001 deg")),
    Sketcher.Constraint("DistanceX", 0, 1, 0, 2, 4.5),
    Sketcher.Constraint("DistanceY", 1, 2, 1, 1, 3.4),
    Sketcher.Constraint("DistanceY", 7, 2, 7, 1, 1.4),
    Sketcher.Constraint("DistanceY", 11, 2, 11, 1, 4.6),
    Sketcher.Constraint("DistanceY", -1, 1, 1, 2, 13.0),
    Sketcher.Constraint("DistanceX", 1, 2, 12, 2, 18.0),
    Sketcher.Constraint("DistanceX", 0, 2, -1, 1, 29.93),
])
pad5 = body.newObject("PartDesign::Pad", "Pad004")
pad5.Profile = sketch6
pad5.Length = 10.4
pad5.Reversed = True

# Sketch on XY plane
sketch7 = body.newObject("Sketcher::SketchObject", "Sketch006")
sketch7.AttachmentSupport = (doc.getObject("XY_Plane"), [""])
sketch7.MapMode = "FlatFace"
sketch7.AttachmentOffset = App.Placement(V(0, 0, 13), App.Rotation())
sketch7.addGeometry([
    Part.LineSegment(V(-37.7, 45.8, 0), V(-37.7, 42.2, 0)),  # 0
    Part.LineSegment(V(-37.7, 42.2, 0), V(-40.1, 39.8, 0)),  # 1
    Part.LineSegment(V(-40.1, 39.8, 0), V(-40.1, 45.8, 0)),  # 2
    Part.LineSegment(V(-40.1, 45.8, 0), V(-37.7, 45.8, 0)),  # 3
    Part.LineSegment(V(-4.1, 42.2, 0), V(-4.1, 45.8, 0)),  # 4
    Part.LineSegment(V(-4.1, 45.8, 0), V(-1.7, 45.8, 0)),  # 5
    Part.LineSegment(V(-1.7, 45.8, 0), V(-1.7, 39.8, 0)),  # 6
    Part.LineSegment(V(-1.7, 39.8, 0), V(-4.1, 42.2, 0)),  # 7
], False)
sketch7.addConstraint([
    Sketcher.Constraint("Coincident", 0, 2, 1, 1),
    Sketcher.Constraint("Coincident", 1, 2, 2, 1),
    Sketcher.Constraint("Coincident", 2, 2, 3, 1),
    Sketcher.Constraint("Coincident", 3, 2, 0, 1),
    Sketcher.Constraint("Coincident", 4, 2, 5, 1),
    Sketcher.Constraint("Coincident", 5, 2, 6, 1),
    Sketcher.Constraint("Coincident", 6, 2, 7, 1),
    Sketcher.Constraint("Coincident", 7, 2, 4, 1),
    Sketcher.Constraint("Vertical", 0),
    Sketcher.Constraint("Vertical", 2),
    Sketcher.Constraint("Horizontal", 3),
    Sketcher.Constraint("Vertical", 4),
    Sketcher.Constraint("Horizontal", 5),
    Sketcher.Constraint("Vertical", 6),
    Sketcher.Constraint("Perpendicular", 1, 7),
    Sketcher.Constraint("Horizontal", 3, 2, 4, 2),
    Sketcher.Constraint("Horizontal", 1, 2, 6, 2),
    Sketcher.Constraint("Horizontal", 0, 2, 7, 2),
    Sketcher.Constraint("Equal", 3, 5),
    Sketcher.Constraint("DistanceX", 3, 2, 4, 2, 33.6),
    Sketcher.Constraint("DistanceY", 2, 1, 2, 2, 6.073),
    Sketcher.Constraint("DistanceX", 0, 2, -1, 1, 37.73),
    Sketcher.Constraint("DistanceY", -1, 1, 2, 2, 45.83),
    Sketcher.Constraint("Distance", 1, 3.416),
])
pocket2 = body.newObject("PartDesign::Pocket", "Pocket001")
pocket2.Profile = sketch7
pocket2.Type = "ThroughAll"
pocket2.Reversed = True

# Sketch on XY plane
sketch8 = body.newObject("Sketcher::SketchObject", "Sketch007")
sketch8.AttachmentSupport = (doc.getObject("XY_Plane"), [""])
sketch8.MapMode = "FlatFace"
sketch8.AttachmentOffset = App.Placement(V(0, 0, 16.4), App.Rotation())
sketch8.addGeometry([
    Part.LineSegment(V(-33, 31, 0), V(-33, 23, 0)),
    Part.LineSegment(V(-33, 23, 0), V(-8, 23, 0)),
    Part.LineSegment(V(-8, 23, 0), V(-8, 31, 0)),
    Part.LineSegment(V(-8, 31, 0), V(-33, 31, 0)),
], False)
sketch8.addConstraint([
    Sketcher.Constraint("Coincident", 0, 2, 1, 1),
    Sketcher.Constraint("Coincident", 1, 2, 2, 1),
    Sketcher.Constraint("Coincident", 2, 2, 3, 1),
    Sketcher.Constraint("Coincident", 3, 2, 0, 1),
    Sketcher.Constraint("Vertical", 0),
    Sketcher.Constraint("Horizontal", 1),
    Sketcher.Constraint("Vertical", 2),
    Sketcher.Constraint("Horizontal", 3),
    Sketcher.Constraint("DistanceX", 1, 1, 1, 2, 25.0),
    Sketcher.Constraint("DistanceY", 0, 2, 0, 1, 8.0),
    Sketcher.Constraint("DistanceY", -1, 1, 0, 2, 22.724),
    Sketcher.Constraint("DistanceX", 0, 2, -1, 1, 33.2963),
])
pocket3 = body.newObject("PartDesign::Pocket", "Pocket002")
pocket3.Profile = sketch8
pocket3.Length = 1

# Sketch on XY plane
sketch9 = body.newObject("Sketcher::SketchObject", "Sketch008")
sketch9.AttachmentSupport = (doc.getObject("XY_Plane"), [""])
sketch9.MapMode = "FlatFace"
sketch9.AttachmentOffset = App.Placement(V(0, 0, 28.4), App.Rotation())
sketch9.addGeometry([
    Part.ArcOfCircle(Part.Circle(V(-31.4, 20.9, 0), V(0, 0, 1), 3.2), math.radians(90), math.radians(270)),  # 0
    Part.LineSegment(V(-31.4, 17.8, 0), V(-10.4, 17.8, 0)),  # 1
    Part.ArcOfCircle(Part.Circle(V(-10.4, 20.9, 0), V(0, 0, 1), 3.2), math.radians(-90), math.radians(90)),  # 2
    Part.LineSegment(V(-10.4, 24.1, 0), V(-31.4, 24.1, 0)),  # 3
    Part.ArcOfCircle(Part.Circle(V(-31.4, 33.4, 0), V(0, 0, 1), 3.2), math.radians(90), math.radians(270)),  # 4
    Part.LineSegment(V(-31.4, 30.3, 0), V(-10.4, 30.3, 0)),  # 5
    Part.ArcOfCircle(Part.Circle(V(-10.4, 33.4, 0), V(0, 0, 1), 3.2), math.radians(-90), math.radians(90)),  # 6
    Part.LineSegment(V(-10.4, 36.6, 0), V(-31.4, 36.6, 0)),  # 7
], False)
sketch9.addConstraint([
    Sketcher.Constraint("Tangent", 0, 2, 1, 1),
    Sketcher.Constraint("Tangent", 1, 2, 2, 1),
    Sketcher.Constraint("Tangent", 2, 2, 3, 1),
    Sketcher.Constraint("Tangent", 3, 2, 0, 1),
    Sketcher.Constraint("Tangent", 4, 2, 5, 1),
    Sketcher.Constraint("Tangent", 5, 2, 6, 1),
    Sketcher.Constraint("Tangent", 6, 2, 7, 1),
    Sketcher.Constraint("Tangent", 7, 2, 4, 1),
    Sketcher.Constraint("Horizontal", 1),
    Sketcher.Constraint("Horizontal", 3),
    Sketcher.Constraint("Horizontal", 5),
    Sketcher.Constraint("Horizontal", 7),
    Sketcher.Constraint("Equal", 2, 4),
    Sketcher.Constraint("Vertical", 0, 3, 4, 3),
    Sketcher.Constraint("Vertical", 2, 3, 6, 3),
    Sketcher.Constraint("DistanceX", 1, 1, 1, 2, 21.0),
    Sketcher.Constraint("Radius", 0, 3.1642),
    Sketcher.Constraint("DistanceY", 0, 3, 4, 3, 12.5),
    Sketcher.Constraint("DistanceX", 0, 3, -1, 1, 31.43),
    Sketcher.Constraint("DistanceY", -1, 1, 0, 3, 20.93),
])
pocket4 = body.newObject("PartDesign::Pocket", "Pocket003")
pocket4.Profile = sketch9
pocket4.Length = 10

doc.recompute()
